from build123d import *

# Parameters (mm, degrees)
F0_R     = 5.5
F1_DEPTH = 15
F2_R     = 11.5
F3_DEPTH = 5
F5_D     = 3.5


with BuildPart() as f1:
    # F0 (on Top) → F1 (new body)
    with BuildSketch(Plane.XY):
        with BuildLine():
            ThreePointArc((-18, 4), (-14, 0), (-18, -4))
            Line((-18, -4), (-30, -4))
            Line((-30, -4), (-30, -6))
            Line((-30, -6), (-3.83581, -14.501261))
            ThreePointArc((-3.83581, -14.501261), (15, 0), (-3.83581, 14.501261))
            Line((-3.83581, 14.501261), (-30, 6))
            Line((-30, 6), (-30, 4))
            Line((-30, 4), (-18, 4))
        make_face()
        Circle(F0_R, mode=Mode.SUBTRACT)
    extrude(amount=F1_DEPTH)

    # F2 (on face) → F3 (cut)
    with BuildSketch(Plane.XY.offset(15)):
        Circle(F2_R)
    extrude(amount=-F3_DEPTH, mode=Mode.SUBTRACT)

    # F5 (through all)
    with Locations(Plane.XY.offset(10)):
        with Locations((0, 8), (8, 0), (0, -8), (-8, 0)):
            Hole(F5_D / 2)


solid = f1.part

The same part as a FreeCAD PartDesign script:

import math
import FreeCAD as App
import Part
import Sketcher

V = App.Vector
Q = App.Units.Quantity

doc = App.newDocument("Part")
body = doc.addObject("PartDesign::Body", "Body")

# Sketch on XY plane
sketch1 = body.newObject("Sketcher::SketchObject", "Sketch")
sketch1.AttachmentSupport = (doc.getObject("XY_Plane"), [""])
sketch1.MapMode = "FlatFace"
sketch1.addGeometry(Part.ArcOfCircle(Part.Circle(V(-18, 0, 0), V(0, 0, 1), 4), math.radians(-90), math.radians(90)), False)
sketch1.addGeometry(Part.LineSegment(V(-18, -4, 0), V(-30, -4, 0)), False)
sketch1.addGeometry(Part.LineSegment(V(-30, -4, 0), V(-30, -6, 0)), False)
sketch1.addGeometry(Part.LineSegment(V(-30, -6, 0), V(-3.8, -14.5, 0)), False)
sketch1.addGeometry(Part.ArcOfCircle(Part.Circle(V(0, 0, 0), V(0, 0, 1), 15), math.radians(-105), math.radians(105)), False)
sketch1.addGeometry(Part.LineSegment(V(-3.8, 14.5, 0), V(-30, 6, 0)), False)
sketch1.addGeometry(Part.LineSegment(V(-30, 6, 0), V(-30, 4, 0)), False)
sketch1.addGeometry(Part.LineSegment(V(-30, 4, 0), V(-18, 4, 0)), False)
sketch1.addGeometry(Part.Circle(V(0, 0, 0), V(0, 0, 1), 5.5), False)
sketch1.addConstraint(Sketcher.Constraint("Tangent", 0, 1, 1, 1))
sketch1.addConstraint(Sketcher.Constraint("Coincident", 1, 2, 2, 1))
sketch1.addConstraint(Sketcher.Constraint("Coincident", 2, 2, 3, 1))
sketch1.addConstraint(Sketcher.Constraint("Coincident", 3, 2, 4, 1))
sketch1.addConstraint(Sketcher.Constraint("Coincident", 4, 2, 5, 1))
sketch1.addConstraint(Sketcher.Constraint("Coincident", 5, 2, 6, 1))
sketch1.addConstraint(Sketcher.Constraint("Coincident", 6, 2, 7, 1))
sketch1.addConstraint(Sketcher.Constraint("Tangent", 7, 2, 0, 2))
sketch1.addConstraint(Sketcher.Constraint("Horizontal", 1))
sketch1.addConstraint(Sketcher.Constraint("Vertical", 2))
sketch1.addConstraint(Sketcher.Constraint("Vertical", 6))
sketch1.addConstraint(Sketcher.Constraint("Horizontal", 7))
sketch1.addConstraint(Sketcher.Constraint("Coincident", 4, 3, -1, 1))
sketch1.addConstraint(Sketcher.Constraint("Coincident", 8, 3, -1, 1))
sketch1.addConstraint(Sketcher.Constraint("Symmetric", 2, 2, 5, 2, -1))
sketch1.addConstraint(Sketcher.Constraint("PointOnObject", 0, 3, -1))
sketch1.addConstraint(Sketcher.Constraint("Vertical", 3, 2, 4, 2))
sketch1.addConstraint(Sketcher.Constraint("Diameter", 8, Q("11 mm")))
sketch1.addConstraint(Sketcher.Constraint("Radius", 0, Q("4 mm")))
sketch1.addConstraint(Sketcher.Constraint("Radius", 4, Q("15 mm")))
sketch1.addConstraint(Sketcher.Constraint("DistanceX", 1, 2, 1, 1, Q("12 mm")))
sketch1.addConstraint(Sketcher.Constraint("DistanceY", 2, 2, 2, 1, Q("2 mm")))
sketch1.addConstraint(Sketcher.Constraint("Angle", 3, Q("-18.000001 deg")))
sketch1.addConstraint(Sketcher.Constraint("DistanceX", 0, 3, -1, 1, Q("18 mm")))
pad1 = body.newObject("PartDesign::Pad", "Pad")
pad1.Profile = sketch1
pad1.Length = 15

# Sketch on XY plane
sketch2 = body.newObject("Sketcher::SketchObject", "Sketch001")
sketch2.AttachmentSupport = (doc.getObject("XY_Plane"), [""])
sketch2.MapMode = "FlatFace"
sketch2.AttachmentOffset = App.Placement(V(0, 0, 15), App.Rotation())
sketch2.addGeometry(Part.Circle(V(0, 0, 0), V(0, 0, 1), 12), False)
sketch2.addConstraint(Sketcher.Constraint("Coincident", 0, 3, -1, 1))
sketch2.addConstraint(Sketcher.Constraint("Diameter", 0, Q("23 mm")))
pocket1 = body.newObject("PartDesign::Pocket", "Pocket")
pocket1.Profile = sketch2
pocket1.Length = 5

# Sketch on XY plane
sketch3 = body.newObject("Sketcher::SketchObject", "Sketch002")
sketch3.AttachmentSupport = (doc.getObject("XY_Plane"), [""])
sketch3.MapMode = "FlatFace"
sketch3.AttachmentOffset = App.Placement(V(0, 0, 10), App.Rotation())
sketch3.addGeometry(Part.Circle(V(0, 8, 0), V(0, 0, 1), 1.8), False)
sketch3.addGeometry(Part.Circle(V(8, 0, 0), V(0, 0, 1), 1.8), False)
sketch3.addGeometry(Part.Circle(V(0, -8, 0), V(0, 0, 1), 1.8), False)
sketch3.addGeometry(Part.Circle(V(-8, 0, 0), V(0, 0, 1), 1.8), False)
sketch3.addConstraint(Sketcher.Constraint("Equal", 0, 1))
sketch3.addConstraint(Sketcher.Constraint("Equal", 1, 2))
sketch3.addConstraint(Sketcher.Constraint("Equal", 2, 3))
sketch3.addConstraint(Sketcher.Constraint("Symmetric", 0, 3, 2, 3, -1, 1))
sketch3.addConstraint(Sketcher.Constraint("Symmetric", 1, 3, 3, 3, -1, 1))
sketch3.addConstraint(Sketcher.Constraint("PointOnObject", 0, 3, -2))
sketch3.addConstraint(Sketcher.Constraint("PointOnObject", 1, 3, -1))
sketch3.addConstraint(Sketcher.Constraint("Diameter", 0, Q("3.5 mm")))
sketch3.addConstraint(Sketcher.Constraint("DistanceY", -1, 1, 0, 3, Q("8 mm")))
sketch3.addConstraint(Sketcher.Constraint("DistanceX", -1, 1, 1, 3, Q("8 mm")))
doc.recompute()
hole = body.newObject("PartDesign::Hole", "Hole")
hole.Profile = sketch3
hole.ThreadType = "None"
hole.Diameter = 3.5
hole.DepthType = "ThroughAll"

doc.recompute()
